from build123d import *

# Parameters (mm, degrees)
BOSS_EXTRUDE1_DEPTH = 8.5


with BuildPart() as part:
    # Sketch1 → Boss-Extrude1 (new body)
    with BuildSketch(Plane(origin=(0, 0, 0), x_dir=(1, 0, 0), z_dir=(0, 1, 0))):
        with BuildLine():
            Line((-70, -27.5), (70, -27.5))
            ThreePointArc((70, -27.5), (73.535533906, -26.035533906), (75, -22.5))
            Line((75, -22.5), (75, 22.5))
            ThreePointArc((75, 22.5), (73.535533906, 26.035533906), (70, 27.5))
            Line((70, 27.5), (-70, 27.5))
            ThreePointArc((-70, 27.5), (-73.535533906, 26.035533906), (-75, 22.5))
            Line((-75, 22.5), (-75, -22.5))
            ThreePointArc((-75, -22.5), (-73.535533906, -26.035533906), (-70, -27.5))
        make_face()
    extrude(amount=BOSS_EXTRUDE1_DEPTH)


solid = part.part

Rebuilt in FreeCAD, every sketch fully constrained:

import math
import FreeCAD as App
import Part
import Sketcher

doc = App.newDocument("Part")
body = doc.addObject("PartDesign::Body", "Body")

sketch1 = body.newObject("Sketcher::SketchObject", "Sketch")
sketch1.AttachmentSupport = (doc.getObject("XZ_Plane"), [""])
sketch1.MapMode = "FlatFace"
sketch1.addGeometry([
    Part.LineSegment(App.Vector(-70, 28, 0), App.Vector(70, 28, 0)),
    Part.ArcOfCircle(Part.Circle(App.Vector(70, 22, 0), App.Vector(0, 0, 1), 5), math.radians(0), math.radians(90)),
    Part.LineSegment(App.Vector(75, 22, 0), App.Vector(75, -22, 0)),
    Part.ArcOfCircle(Part.Circle(App.Vector(70, -22, 0), App.Vector(0, 0, 1), 5), math.radians(-90), math.radians(0)),
    Part.LineSegment(App.Vector(70, -28, 0), App.Vector(-70, -28, 0)),
    Part.ArcOfCircle(Part.Circle(App.Vector(-70, -22, 0), App.Vector(0, 0, 1), 5), math.radians(180), math.radians(270)),
    Part.LineSegment(App.Vector(-75, -22, 0), App.Vector(-75, 22, 0)),
    Part.ArcOfCircle(Part.Circle(App.Vector(-70, 22, 0), App.Vector(0, 0, 1), 5), math.radians(90), math.radians(180)),
], False)
sketch1.addConstraint([
    Sketcher.Constraint("Tangent", 0, 2, 1, 2),
    Sketcher.Constraint("Tangent", 1, 1, 2, 1),
    Sketcher.Constraint("Tangent", 2, 2, 3, 2),
    Sketcher.Constraint("Tangent", 3, 1, 4, 1),
    Sketcher.Constraint("Tangent", 4, 2, 5, 2),
    Sketcher.Constraint("Tangent", 5, 1, 6, 1),
    Sketcher.Constraint("Tangent", 6, 2, 7, 2),
    Sketcher.Constraint("Tangent", 7, 1, 0, 1),
    Sketcher.Constraint("Horizontal", 0),
    Sketcher.Constraint("Vertical", 2),
    Sketcher.Constraint("Horizontal", 4),
    Sketcher.Constraint("Vertical", 6),
    Sketcher.Constraint("Equal", 1, 3),
    Sketcher.Constraint("Equal", 3, 5),
    Sketcher.Constraint("Equal", 5, 7),
    Sketcher.Constraint("Symmetric", 1, 3, 5, 3, -1, 1),
    Sketcher.Constraint("Radius", 1, 5.0),
    Sketcher.Constraint("DistanceX", 0, 1, 0, 2, 140.0),
    Sketcher.Constraint("DistanceY", 2, 2, 2, 1, 45.0),
])
pad1 = body.newObject("PartDesign::Pad", "Pad")
pad1.Profile = sketch1
pad1.Length = 8.5
pad1.Reversed = True

doc.recompute()
